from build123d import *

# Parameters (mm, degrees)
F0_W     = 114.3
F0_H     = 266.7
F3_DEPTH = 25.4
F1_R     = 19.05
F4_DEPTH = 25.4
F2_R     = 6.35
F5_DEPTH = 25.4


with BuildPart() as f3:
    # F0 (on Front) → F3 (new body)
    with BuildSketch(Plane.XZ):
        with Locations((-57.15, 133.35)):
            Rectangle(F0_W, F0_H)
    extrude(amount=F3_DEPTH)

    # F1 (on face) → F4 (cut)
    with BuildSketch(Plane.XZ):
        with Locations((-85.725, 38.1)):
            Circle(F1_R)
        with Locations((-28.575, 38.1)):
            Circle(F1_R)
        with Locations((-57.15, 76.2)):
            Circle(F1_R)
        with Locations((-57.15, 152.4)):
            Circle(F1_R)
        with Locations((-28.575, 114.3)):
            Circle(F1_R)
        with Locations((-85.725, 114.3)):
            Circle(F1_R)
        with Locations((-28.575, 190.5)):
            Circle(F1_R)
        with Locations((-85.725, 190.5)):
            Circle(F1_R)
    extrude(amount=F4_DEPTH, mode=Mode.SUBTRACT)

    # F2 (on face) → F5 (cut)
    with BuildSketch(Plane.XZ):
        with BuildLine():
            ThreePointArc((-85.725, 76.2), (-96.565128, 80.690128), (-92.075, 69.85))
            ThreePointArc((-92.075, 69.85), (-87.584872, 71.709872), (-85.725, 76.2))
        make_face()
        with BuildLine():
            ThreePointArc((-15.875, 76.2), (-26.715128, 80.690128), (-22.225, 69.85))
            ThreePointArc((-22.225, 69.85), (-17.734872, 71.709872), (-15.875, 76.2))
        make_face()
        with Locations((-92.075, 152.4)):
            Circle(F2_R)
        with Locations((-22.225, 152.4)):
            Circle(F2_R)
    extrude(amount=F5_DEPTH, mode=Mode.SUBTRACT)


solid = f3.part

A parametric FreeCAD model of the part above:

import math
import FreeCAD as App
import Part
import Sketcher
from FreeCAD import Vector
Q = App.Units.Quantity


def add_polygon(sketch, points):
    """Adds a closed chain of lines whose ends are joined by coincident constraints."""
    first, n = sketch.GeometryCount, len(points)
    for a, b in zip(points, points[1:] + points[:1]):
        sketch.addGeometry(Part.LineSegment(App.Vector(*a, 0), App.Vector(*b, 0)), False)
    for i in range(n):
        sketch.addConstraint(Sketcher.Constraint("Coincident", first + i, 2, first + (i + 1) % n, 1))

doc = App.newDocument("Part")
params = doc.addObject("Spreadsheet::Sheet", "Params")
for row, (alias, value) in enumerate([
    ("sketch1_width", "4.5 in"),
    ("sketch1_height", "10.5 in"),
    ("pad1_length", "1 in"),
    ("sketch2_diameter", "1.5 in"),
    ("pocket1_length", "1 in"),
    ("sketch3_diameter", "0.5 in"),
    ("pocket2_length", "1 in"),
], start=1):
    params.set(f"A{row}", alias)
    params.set(f"B{row}", "=" + value)
    params.setAlias(f"B{row}", alias)

body = doc.addObject("PartDesign::Body", "Body")

sketch1 = body.newObject("Sketcher::SketchObject", "Sketch")
sketch1.AttachmentSupport = (doc.getObject("XZ_Plane"), [""])
sketch1.MapMode = "FlatFace"
add_polygon(sketch1, [(-114, 267), (-114, 0), (0, 0), (0, 267)])
sketch1.addConstraint([
    Sketcher.Constraint("Vertical", 0),
    Sketcher.Constraint("Horizontal", 1),
    Sketcher.Constraint("Vertical", 2),
    Sketcher.Constraint("Horizontal", 3),
    Sketcher.Constraint("Coincident", 1, 2, -1, 1),
    Sketcher.Constraint("DistanceX", 1, 1, 1, 2, Q("4.5 in")),
    Sketcher.Constraint("DistanceY", 0, 2, 0, 1, Q("10.5 in")),
])
sketch1.setExpression("Constraints[9]", "Params.sketch1_width")
sketch1.setExpression("Constraints[10]", "Params.sketch1_height")
pad1 = body.newObject("PartDesign::Pad", "Pad")
pad1.Profile = sketch1
pad1.setExpression("Length", "Params.pad1_length")

sketch2 = body.newObject("Sketcher::SketchObject", "Sketch001")
sketch2.AttachmentSupport = (doc.getObject("XZ_Plane"), [""])
sketch2.MapMode = "FlatFace"
sketch2.addGeometry([
    Part.Circle(Vector(-86, 38, 0), Vector(0, 0, 1), 19),
    Part.Circle(Vector(-29, 38, 0), Vector(0, 0, 1), 19),
    Part.Circle(Vector(-57, 76, 0), Vector(0, 0, 1), 19),
    Part.Circle(Vector(-57, 152, 0), Vector(0, 0, 1), 19),
    Part.Circle(Vector(-29, 114, 0), Vector(0, 0, 1), 19),
    Part.Circle(Vector(-86, 114, 0), Vector(0, 0, 1), 19),
    Part.Circle(Vector(-29, 190, 0), Vector(0, 0, 1), 19),
    Part.Circle(Vector(-86, 190, 0), Vector(0, 0, 1), 19),
], False)
sketch2.addConstraint([
    Sketcher.Constraint("Equal", 0, 1),
    Sketcher.Constraint("Equal", 1, 2),
    Sketcher.Constraint("Equal", 2, 3),
    Sketcher.Constraint("Equal", 3, 4),
    Sketcher.Constraint("Equal", 4, 5),
    Sketcher.Constraint("Equal", 5, 6),
    Sketcher.Constraint("Equal", 6, 7),
    Sketcher.Constraint("Horizontal", 0, 3, 1, 3),
    Sketcher.Constraint("Horizontal", 4, 3, 5, 3),
    Sketcher.Constraint("Horizontal", 6, 3, 7, 3),
    Sketcher.Constraint("Vertical", 2, 3, 3, 3),
    Sketcher.Constraint("Vertical", 1, 3, 4, 3),
    Sketcher.Constraint("Vertical", 0, 3, 5, 3),
    Sketcher.Constraint("Vertical", 4, 3, 6, 3),
    Sketcher.Constraint("Vertical", 5, 3, 7, 3),
    Sketcher.Constraint("Diameter", 0, Q("1.5 in")),
    Sketcher.Constraint("DistanceY", -1, 1, 2, 3, Q("3 in")),
    Sketcher.Constraint("DistanceY", -1, 1, 3, 3, Q("6 in")),
    Sketcher.Constraint("DistanceY", 1, 3, 4, 3, Q("3 in")),
    Sketcher.Constraint("DistanceY", 4, 3, 6, 3, Q("3 in")),
    Sketcher.Constraint("DistanceY", -1, 1, 0, 3, Q("1.5 in")),
    Sketcher.Constraint("DistanceX", 2, 3, -1, 1, Q("2.25 in")),
    Sketcher.Constraint("DistanceX", 0, 3, 1, 3, Q("2.25 in")),
    Sketcher.Constraint("DistanceX", 0, 3, -1, 1, Q("3.375 in")),
])
sketch2.setExpression("Constraints[15]", "Params.sketch2_diameter")
pocket1 = body.newObject("PartDesign::Pocket", "Pocket")
pocket1.Profile = sketch2
pocket1.setExpression("Length", "Params.pocket1_length")
pocket1.Reversed = True

sketch3 = body.newObject("Sketcher::SketchObject", "Sketch002")
sketch3.AttachmentSupport = (doc.getObject("XZ_Plane"), [""])
sketch3.MapMode = "FlatFace"
sketch3.addGeometry([
    Part.ArcOfCircle(Part.Circle(Vector(-92, 76, 0), Vector(0, 0, 1), 6), math.radians(0), math.radians(270)),
    Part.ArcOfCircle(Part.Circle(Vector(-92, 76, 0), Vector(0, 0, 1), 6), math.radians(-90), math.radians(0)),
    Part.ArcOfCircle(Part.Circle(Vector(-22, 76, 0), Vector(0, 0, 1), 6), math.radians(0), math.radians(270)),
    Part.ArcOfCircle(Part.Circle(Vector(-22, 76, 0), Vector(0, 0, 1), 6), math.radians(-90), math.radians(0)),
    Part.Circle(Vector(-92, 152, 0), Vector(0, 0, 1), 6),
    Part.Circle(Vector(-22, 152, 0), Vector(0, 0, 1), 6),
], False)
sketch3.addConstraint([
    Sketcher.Constraint("Tangent", 0, 1, 1, 2),
    Sketcher.Constraint("Coincident", 1, 1, 0, 2),
    Sketcher.Constraint("Tangent", 2, 1, 3, 2),
    Sketcher.Constraint("Coincident", 3, 1, 2, 2),
    Sketcher.Constraint("Equal", 1, 2),
    Sketcher.Constraint("Equal", 3, 4),
    Sketcher.Constraint("Equal", 4, 5),
    Sketcher.Constraint("Horizontal", 1, 3, 2, 3),
    Sketcher.Constraint("Horizontal", 4, 3, 5, 3),
    Sketcher.Constraint("Horizontal", 3, 3, 0, 1),
    Sketcher.Constraint("Horizontal", 0, 1, 2, 1),
    Sketcher.Constraint("Vertical", 1, 3, 4, 3),
    Sketcher.Constraint("Vertical", 3, 3, 5, 3),
    Sketcher.Constraint("Vertical", 4, 3, 1, 1),
    Sketcher.Constraint("Vertical", 5, 3, 3, 1),
    Sketcher.Constraint("Diameter", 4, Q("0.5 in")),
    Sketcher.Constraint("DistanceY", -1, 1, 0, 3, Q("3 in")),
    Sketcher.Constraint("DistanceY", -1, 1, 4, 3, Q("6 in")),
    Sketcher.Constraint("DistanceX", 0, 3, 2, 1, Q("3 in")),
    Sketcher.Constraint("DistanceX", 0, 3, -1, 1, Q("3.625 in")),
])
sketch3.setExpression("Constraints[15]", "Params.sketch3_diameter")
pocket2 = body.newObject("PartDesign::Pocket", "Pocket001")
pocket2.Profile = sketch3
pocket2.setExpression("Length", "Params.pocket2_length")
pocket2.Reversed = True

doc.recompute()
